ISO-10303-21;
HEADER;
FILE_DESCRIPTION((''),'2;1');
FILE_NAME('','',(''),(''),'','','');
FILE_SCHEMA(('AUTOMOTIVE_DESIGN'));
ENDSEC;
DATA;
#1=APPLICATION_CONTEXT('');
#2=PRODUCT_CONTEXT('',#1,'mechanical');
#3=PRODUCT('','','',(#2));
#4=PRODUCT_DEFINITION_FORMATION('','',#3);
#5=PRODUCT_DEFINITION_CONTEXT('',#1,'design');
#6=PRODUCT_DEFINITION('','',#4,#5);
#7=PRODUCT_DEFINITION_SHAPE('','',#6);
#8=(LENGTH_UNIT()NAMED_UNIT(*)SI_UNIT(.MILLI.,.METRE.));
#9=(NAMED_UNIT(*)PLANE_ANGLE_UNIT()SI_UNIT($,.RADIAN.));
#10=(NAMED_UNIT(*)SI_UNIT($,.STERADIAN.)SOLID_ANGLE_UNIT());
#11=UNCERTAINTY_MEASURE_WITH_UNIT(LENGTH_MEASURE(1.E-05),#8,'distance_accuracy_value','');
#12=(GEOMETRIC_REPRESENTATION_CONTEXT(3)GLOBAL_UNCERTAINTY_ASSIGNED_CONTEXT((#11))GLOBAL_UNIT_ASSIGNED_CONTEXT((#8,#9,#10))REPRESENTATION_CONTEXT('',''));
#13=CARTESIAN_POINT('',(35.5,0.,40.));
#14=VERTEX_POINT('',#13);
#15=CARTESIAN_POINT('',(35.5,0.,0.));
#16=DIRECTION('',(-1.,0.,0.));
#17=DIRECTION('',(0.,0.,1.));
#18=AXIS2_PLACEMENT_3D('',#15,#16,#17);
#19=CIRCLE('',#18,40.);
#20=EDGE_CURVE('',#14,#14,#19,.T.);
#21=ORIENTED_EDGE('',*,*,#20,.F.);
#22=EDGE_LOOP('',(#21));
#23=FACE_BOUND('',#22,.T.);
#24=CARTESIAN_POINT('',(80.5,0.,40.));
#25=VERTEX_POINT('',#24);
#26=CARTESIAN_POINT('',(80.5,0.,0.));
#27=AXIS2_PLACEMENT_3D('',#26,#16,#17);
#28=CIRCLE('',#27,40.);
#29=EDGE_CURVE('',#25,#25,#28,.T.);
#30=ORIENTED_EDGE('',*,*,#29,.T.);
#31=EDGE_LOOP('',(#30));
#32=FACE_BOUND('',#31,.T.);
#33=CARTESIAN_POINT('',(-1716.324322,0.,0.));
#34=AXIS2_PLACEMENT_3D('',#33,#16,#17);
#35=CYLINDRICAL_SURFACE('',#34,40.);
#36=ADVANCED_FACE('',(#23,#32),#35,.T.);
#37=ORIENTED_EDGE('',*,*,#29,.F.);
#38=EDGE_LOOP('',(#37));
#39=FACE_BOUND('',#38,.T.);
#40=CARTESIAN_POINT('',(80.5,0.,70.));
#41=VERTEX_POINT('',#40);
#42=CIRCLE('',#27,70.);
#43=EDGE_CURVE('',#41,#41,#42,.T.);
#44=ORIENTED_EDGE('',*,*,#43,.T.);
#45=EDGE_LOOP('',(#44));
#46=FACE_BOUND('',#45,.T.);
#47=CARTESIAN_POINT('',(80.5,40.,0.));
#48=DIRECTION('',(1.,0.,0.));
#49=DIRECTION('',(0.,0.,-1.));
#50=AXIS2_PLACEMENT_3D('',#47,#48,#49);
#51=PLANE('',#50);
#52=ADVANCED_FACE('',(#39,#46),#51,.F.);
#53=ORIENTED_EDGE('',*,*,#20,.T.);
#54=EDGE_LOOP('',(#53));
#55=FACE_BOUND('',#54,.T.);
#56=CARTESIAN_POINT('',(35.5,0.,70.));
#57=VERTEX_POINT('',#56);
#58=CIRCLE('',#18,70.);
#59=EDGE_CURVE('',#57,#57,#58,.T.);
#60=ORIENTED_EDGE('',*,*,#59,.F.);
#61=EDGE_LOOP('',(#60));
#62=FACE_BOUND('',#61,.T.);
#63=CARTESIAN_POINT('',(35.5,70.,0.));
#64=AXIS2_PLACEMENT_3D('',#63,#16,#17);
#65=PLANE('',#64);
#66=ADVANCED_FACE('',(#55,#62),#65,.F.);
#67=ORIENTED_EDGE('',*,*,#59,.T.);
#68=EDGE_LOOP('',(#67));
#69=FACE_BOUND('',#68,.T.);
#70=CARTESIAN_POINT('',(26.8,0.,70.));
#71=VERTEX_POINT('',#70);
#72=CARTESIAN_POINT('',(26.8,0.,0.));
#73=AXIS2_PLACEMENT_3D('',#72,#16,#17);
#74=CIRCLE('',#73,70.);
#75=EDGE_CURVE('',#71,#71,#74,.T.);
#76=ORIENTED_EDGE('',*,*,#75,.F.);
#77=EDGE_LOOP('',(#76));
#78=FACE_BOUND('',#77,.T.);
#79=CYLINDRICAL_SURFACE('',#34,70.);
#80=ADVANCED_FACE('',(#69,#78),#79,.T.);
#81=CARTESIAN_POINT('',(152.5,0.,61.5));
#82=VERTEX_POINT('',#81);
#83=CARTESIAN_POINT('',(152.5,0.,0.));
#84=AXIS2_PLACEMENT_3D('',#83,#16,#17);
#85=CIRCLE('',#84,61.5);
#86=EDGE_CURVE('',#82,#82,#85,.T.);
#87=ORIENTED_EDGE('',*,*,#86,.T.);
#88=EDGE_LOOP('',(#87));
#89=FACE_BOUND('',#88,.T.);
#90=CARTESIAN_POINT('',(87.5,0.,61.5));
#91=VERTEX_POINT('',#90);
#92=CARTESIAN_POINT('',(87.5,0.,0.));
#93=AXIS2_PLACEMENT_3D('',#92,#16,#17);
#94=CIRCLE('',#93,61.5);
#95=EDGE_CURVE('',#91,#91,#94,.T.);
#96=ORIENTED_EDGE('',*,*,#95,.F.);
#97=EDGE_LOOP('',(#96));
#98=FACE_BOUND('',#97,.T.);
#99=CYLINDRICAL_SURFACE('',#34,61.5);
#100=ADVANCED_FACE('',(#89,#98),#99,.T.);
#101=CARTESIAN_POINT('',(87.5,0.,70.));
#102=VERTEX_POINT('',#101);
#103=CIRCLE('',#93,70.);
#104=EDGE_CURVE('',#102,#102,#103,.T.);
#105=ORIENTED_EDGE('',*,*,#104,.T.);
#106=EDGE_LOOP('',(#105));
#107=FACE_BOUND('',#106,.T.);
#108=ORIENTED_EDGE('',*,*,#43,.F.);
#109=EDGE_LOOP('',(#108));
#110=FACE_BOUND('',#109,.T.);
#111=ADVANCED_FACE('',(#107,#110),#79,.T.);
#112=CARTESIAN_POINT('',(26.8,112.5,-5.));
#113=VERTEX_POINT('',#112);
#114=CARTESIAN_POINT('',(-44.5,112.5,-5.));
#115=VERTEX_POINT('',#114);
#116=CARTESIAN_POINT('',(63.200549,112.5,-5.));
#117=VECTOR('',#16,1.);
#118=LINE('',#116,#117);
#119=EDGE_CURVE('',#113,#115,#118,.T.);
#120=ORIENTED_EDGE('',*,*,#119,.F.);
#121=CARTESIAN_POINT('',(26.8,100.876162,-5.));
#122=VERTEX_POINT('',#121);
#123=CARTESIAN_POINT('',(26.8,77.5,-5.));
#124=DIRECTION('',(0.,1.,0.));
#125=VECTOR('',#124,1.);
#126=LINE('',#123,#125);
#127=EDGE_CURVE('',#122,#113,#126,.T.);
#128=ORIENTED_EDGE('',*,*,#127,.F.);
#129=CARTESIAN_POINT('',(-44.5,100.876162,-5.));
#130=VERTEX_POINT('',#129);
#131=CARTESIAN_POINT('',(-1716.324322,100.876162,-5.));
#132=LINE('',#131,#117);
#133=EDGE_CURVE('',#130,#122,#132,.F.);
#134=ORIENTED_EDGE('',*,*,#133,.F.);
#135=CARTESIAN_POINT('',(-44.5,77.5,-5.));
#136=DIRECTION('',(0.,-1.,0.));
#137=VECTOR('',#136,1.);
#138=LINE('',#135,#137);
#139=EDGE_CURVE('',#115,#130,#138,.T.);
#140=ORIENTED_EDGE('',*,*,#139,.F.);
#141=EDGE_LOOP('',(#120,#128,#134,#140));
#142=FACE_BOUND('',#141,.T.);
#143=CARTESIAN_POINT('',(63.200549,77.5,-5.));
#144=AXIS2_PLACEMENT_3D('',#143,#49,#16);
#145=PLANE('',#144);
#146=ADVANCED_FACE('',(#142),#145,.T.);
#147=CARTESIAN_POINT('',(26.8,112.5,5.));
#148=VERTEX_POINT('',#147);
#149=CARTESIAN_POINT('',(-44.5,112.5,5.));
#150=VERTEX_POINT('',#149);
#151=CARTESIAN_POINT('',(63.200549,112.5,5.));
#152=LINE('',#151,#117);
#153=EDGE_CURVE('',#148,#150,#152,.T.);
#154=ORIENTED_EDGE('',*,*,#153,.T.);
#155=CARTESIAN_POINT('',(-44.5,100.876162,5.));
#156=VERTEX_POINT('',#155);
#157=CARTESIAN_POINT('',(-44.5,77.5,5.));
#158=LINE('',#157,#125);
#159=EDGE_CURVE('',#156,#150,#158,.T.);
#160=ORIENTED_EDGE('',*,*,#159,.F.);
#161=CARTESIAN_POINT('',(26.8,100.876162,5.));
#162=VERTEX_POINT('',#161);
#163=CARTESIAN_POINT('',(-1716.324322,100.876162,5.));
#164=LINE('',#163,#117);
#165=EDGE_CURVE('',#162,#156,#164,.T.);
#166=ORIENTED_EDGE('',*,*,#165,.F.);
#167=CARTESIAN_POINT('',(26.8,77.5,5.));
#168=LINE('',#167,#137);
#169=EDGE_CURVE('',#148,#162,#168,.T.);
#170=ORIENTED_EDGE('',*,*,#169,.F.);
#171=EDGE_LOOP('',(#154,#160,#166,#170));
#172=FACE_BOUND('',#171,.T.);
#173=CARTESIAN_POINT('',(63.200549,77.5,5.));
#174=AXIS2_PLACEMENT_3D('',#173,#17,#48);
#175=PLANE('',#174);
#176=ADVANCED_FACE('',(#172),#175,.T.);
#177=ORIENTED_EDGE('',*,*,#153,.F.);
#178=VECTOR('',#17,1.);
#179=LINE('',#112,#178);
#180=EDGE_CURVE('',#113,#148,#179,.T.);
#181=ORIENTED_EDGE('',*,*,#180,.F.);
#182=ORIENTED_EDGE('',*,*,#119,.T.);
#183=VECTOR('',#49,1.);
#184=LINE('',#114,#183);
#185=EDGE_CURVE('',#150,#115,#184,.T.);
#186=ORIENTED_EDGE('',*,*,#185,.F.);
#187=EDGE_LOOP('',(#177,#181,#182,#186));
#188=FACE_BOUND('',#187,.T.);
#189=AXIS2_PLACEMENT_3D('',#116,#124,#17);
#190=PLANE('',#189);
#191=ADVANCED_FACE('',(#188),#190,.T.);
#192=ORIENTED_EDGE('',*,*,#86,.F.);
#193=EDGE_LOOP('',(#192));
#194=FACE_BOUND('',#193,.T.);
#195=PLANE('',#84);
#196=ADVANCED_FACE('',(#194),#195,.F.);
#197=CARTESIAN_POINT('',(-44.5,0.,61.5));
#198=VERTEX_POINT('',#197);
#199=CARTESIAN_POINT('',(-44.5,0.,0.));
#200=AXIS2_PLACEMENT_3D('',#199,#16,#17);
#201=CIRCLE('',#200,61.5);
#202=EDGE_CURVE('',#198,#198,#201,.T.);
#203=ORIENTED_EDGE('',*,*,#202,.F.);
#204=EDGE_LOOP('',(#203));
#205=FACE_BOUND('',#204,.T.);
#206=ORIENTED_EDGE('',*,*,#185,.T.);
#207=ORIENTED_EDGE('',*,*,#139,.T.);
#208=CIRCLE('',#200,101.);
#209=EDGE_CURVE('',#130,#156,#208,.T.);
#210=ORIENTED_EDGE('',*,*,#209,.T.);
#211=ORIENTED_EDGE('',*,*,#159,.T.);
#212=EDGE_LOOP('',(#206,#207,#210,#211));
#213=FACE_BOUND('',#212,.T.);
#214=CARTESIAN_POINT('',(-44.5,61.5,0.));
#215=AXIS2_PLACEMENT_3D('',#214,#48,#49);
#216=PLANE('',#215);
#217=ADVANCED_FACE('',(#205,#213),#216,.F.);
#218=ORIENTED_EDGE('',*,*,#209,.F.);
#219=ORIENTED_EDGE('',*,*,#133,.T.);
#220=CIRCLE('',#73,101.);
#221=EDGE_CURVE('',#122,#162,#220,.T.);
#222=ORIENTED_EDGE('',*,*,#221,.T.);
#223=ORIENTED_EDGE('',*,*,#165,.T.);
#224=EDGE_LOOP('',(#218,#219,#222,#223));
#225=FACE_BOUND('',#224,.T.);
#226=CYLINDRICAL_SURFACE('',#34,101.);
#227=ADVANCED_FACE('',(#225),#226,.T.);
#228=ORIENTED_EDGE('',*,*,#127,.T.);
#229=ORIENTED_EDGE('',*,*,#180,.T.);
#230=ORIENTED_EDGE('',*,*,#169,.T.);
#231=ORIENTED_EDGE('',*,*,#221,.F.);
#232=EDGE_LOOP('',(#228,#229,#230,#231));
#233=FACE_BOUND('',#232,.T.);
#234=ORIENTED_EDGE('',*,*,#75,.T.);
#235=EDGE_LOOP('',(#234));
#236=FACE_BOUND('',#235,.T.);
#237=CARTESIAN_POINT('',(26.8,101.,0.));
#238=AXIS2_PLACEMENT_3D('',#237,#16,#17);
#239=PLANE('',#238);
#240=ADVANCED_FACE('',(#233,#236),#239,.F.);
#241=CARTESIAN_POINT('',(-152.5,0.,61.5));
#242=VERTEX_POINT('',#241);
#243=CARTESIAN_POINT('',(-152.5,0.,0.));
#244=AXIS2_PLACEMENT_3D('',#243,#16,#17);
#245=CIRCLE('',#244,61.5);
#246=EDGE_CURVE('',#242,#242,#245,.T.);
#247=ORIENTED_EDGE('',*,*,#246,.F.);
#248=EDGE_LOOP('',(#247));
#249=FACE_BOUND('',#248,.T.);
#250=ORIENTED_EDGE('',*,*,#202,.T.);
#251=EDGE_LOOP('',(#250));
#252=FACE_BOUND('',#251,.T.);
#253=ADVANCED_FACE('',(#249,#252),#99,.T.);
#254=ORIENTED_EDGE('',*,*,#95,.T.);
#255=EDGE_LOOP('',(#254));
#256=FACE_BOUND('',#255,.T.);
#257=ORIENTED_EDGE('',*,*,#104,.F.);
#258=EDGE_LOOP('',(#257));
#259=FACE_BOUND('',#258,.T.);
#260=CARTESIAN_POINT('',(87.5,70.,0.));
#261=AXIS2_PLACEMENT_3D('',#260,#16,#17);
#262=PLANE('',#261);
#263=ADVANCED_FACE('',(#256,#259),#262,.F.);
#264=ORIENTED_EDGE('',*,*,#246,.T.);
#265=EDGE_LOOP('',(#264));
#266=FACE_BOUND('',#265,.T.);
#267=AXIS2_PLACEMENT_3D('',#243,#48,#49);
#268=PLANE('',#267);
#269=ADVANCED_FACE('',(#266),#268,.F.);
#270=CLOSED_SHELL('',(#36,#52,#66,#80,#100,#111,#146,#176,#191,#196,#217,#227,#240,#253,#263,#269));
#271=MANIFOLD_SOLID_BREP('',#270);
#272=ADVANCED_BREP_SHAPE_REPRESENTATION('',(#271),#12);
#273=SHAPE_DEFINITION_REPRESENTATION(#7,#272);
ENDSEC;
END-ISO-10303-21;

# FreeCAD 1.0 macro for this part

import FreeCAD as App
import Part
import Sketcher
from FreeCAD import Vector
Q = App.Units.Quantity

doc = App.newDocument("Part")
body = doc.addObject("PartDesign::Body", "Body")

# Sketch on XY plane
sketch1 = body.newObject("Sketcher::SketchObject", "Sketch")
sketch1.AttachmentSupport = (doc.getObject("XY_Plane"), [""])
sketch1.MapMode = "FlatFace"
sketch1.addGeometry([
    Part.LineSegment(Vector(-152, 0, 0), Vector(152, 0, 0)),  # 0
    Part.LineSegment(Vector(152, 0, 0), Vector(152, 62, 0)),  # 1
    Part.LineSegment(Vector(152, 62, 0), Vector(88, 62, 0)),  # 2
    Part.LineSegment(Vector(88, 62, 0), Vector(88, 70, 0)),  # 3
    Part.LineSegment(Vector(88, 70, 0), Vector(80, 70, 0)),  # 4
    Part.LineSegment(Vector(80, 70, 0), Vector(80, 40, 0)),  # 5
    Part.LineSegment(Vector(80, 40, 0), Vector(36, 40, 0)),  # 6
    Part.LineSegment(Vector(36, 40, 0), Vector(36, 70, 0)),  # 7
    Part.LineSegment(Vector(36, 70, 0), Vector(27, 70, 0)),  # 8
    Part.LineSegment(Vector(27, 70, 0), Vector(27, 101, 0)),  # 9
    Part.LineSegment(Vector(27, 101, 0), Vector(-44, 101, 0)),  # 10
    Part.LineSegment(Vector(-44, 101, 0), Vector(-44, 62, 0)),  # 11
    Part.LineSegment(Vector(-44, 62, 0), Vector(-152, 62, 0)),  # 12
    Part.LineSegment(Vector(-152, 62, 0), Vector(-152, 0, 0)),  # 13
], False)
sketch1.addConstraint([
    Sketcher.Constraint("Coincident", 0, 2, 1, 1),
    Sketcher.Constraint("Coincident", 1, 2, 2, 1),
    Sketcher.Constraint("Coincident", 2, 2, 3, 1),
    Sketcher.Constraint("Coincident", 3, 2, 4, 1),
    Sketcher.Constraint("Coincident", 4, 2, 5, 1),
    Sketcher.Constraint("Coincident", 5, 2, 6, 1),
    Sketcher.Constraint("Coincident", 6, 2, 7, 1),
    Sketcher.Constraint("Coincident", 7, 2, 8, 1),
    Sketcher.Constraint("Coincident", 8, 2, 9, 1),
    Sketcher.Constraint("Coincident", 9, 2, 10, 1),
    Sketcher.Constraint("Coincident", 10, 2, 11, 1),
    Sketcher.Constraint("Coincident", 11, 2, 12, 1),
    Sketcher.Constraint("Coincident", 12, 2, 13, 1),
    Sketcher.Constraint("Coincident", 13, 2, 0, 1),
    Sketcher.Constraint("Horizontal", 0),
    Sketcher.Constraint("Vertical", 1),
    Sketcher.Constraint("Horizontal", 2),
    Sketcher.Constraint("Vertical", 3),
    Sketcher.Constraint("Horizontal", 4),
    Sketcher.Constraint("Vertical", 5),
    Sketcher.Constraint("Horizontal", 6),
    Sketcher.Constraint("Vertical", 7),
    Sketcher.Constraint("Horizontal", 8),
    Sketcher.Constraint("Vertical", 9),
    Sketcher.Constraint("Horizontal", 10),
    Sketcher.Constraint("Vertical", 11),
    Sketcher.Constraint("Horizontal", 12),
    Sketcher.Constraint("Vertical", 13),
    Sketcher.Constraint("Symmetric", 0, 2, 13, 2, -1, 1),
    Sketcher.Constraint("Horizontal", 4, 2, 7, 2),
    Sketcher.Constraint("Horizontal", 2, 2, 11, 2),
    Sketcher.Constraint("DistanceX", 0, 1, 0, 2, Q("305 mm")),
    Sketcher.Constraint("DistanceX", 2, 2, 2, 1, Q("65 mm")),
    Sketcher.Constraint("DistanceX", 4, 2, 4, 1, Q("7 mm")),
    Sketcher.Constraint("DistanceX", 6, 2, 6, 1, Q("45 mm")),
    Sketcher.Constraint("DistanceX", 12, 2, 12, 1, Q("108 mm")),
    Sketcher.Constraint("DistanceY", 5, 2, 5, 1, Q("30 mm")),
    Sketcher.Constraint("DistanceY", 9, 1, 9, 2, Q("31 mm")),
    Sketcher.Constraint("DistanceX", 8, 2, 8, 1, Q("8.7 mm")),
    Sketcher.Constraint("DistanceY", 1, 1, 1, 2, Q("61.5 mm")),
    Sketcher.Constraint("DistanceY", 3, 1, 3, 2, Q("8.5 mm")),
])
revolution = body.newObject("PartDesign::Revolution", "Revolution")
revolution.Profile = sketch1
revolution.ReferenceAxis = (sketch1, ["H_Axis"])
revolution.Angle = 360

# Sketch on YZ plane
sketch2 = body.newObject("Sketcher::SketchObject", "Sketch001")
sketch2.AttachmentSupport = (doc.getObject("YZ_Plane"), [""])
sketch2.MapMode = "FlatFace"
sketch2.AttachmentOffset = App.Placement(Vector(0, 0, -44.5), App.Rotation())
sketch2.addGeometry([
    Part.LineSegment(Vector(112, -5, 0), Vector(78, -5, 0)),
    Part.LineSegment(Vector(78, -5, 0), Vector(78, 5, 0)),
    Part.LineSegment(Vector(78, 5, 0), Vector(112, 5, 0)),
    Part.LineSegment(Vector(112, 5, 0), Vector(112, -5, 0)),
], False)
sketch2.addConstraint([
    Sketcher.Constraint("Coincident", 0, 2, 1, 1),
    Sketcher.Constraint("Coincident", 1, 2, 2, 1),
    Sketcher.Constraint("Coincident", 2, 2, 3, 1),
    Sketcher.Constraint("Coincident", 3, 2, 0, 1),
    Sketcher.Constraint("Horizontal", 0),
    Sketcher.Constraint("Vertical", 1),
    Sketcher.Constraint("Horizontal", 2),
    Sketcher.Constraint("Vertical", 3),
    Sketcher.Constraint("DistanceX", 0, 2, 0, 1, Q("35 mm")),
    Sketcher.Constraint("DistanceY", 1, 1, 1, 2, Q("10 mm")),
    Sketcher.Constraint("DistanceY", 0, 2, -1, 1, Q("5 mm")),
    Sketcher.Constraint("DistanceX", -1, 1, 0, 2, Q("77.5 mm")),
])
pad1 = body.newObject("PartDesign::Pad", "Pad")
pad1.Profile = sketch2
pad1.Length = 71.3

doc.recompute()
